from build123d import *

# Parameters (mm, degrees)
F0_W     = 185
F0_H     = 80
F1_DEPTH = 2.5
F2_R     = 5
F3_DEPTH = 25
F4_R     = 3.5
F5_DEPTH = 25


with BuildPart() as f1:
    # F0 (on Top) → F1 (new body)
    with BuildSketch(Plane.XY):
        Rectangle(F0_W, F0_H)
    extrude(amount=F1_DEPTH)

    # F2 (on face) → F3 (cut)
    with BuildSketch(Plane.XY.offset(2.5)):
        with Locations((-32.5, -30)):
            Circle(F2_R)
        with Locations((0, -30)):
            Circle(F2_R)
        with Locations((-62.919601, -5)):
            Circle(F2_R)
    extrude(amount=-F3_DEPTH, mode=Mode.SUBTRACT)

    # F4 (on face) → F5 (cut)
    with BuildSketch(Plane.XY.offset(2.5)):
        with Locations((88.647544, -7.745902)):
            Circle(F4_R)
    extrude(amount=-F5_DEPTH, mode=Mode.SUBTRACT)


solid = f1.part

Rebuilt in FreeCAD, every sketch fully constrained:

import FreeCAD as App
import Part
import Sketcher
from FreeCAD import Vector
Q = App.Units.Quantity


def add_polygon(sketch, points):
    """Adds a closed chain of lines whose ends are joined by coincident constraints."""
    first, n = sketch.GeometryCount, len(points)
    for a, b in zip(points, points[1:] + points[:1]):
        sketch.addGeometry(Part.LineSegment(App.Vector(*a, 0), App.Vector(*b, 0)), False)
    for i in range(n):
        sketch.addConstraint(Sketcher.Constraint("Coincident", first + i, 2, first + (i + 1) % n, 1))

doc = App.newDocument("Part")
body = doc.addObject("PartDesign::Body", "Body")

sketch1 = doc.addObject("Sketcher::SketchObject", "Sketch")
body.addObject(sketch1)
sketch1.AttachmentSupport = (doc.XY_Plane, [""])
sketch1.MapMode = "FlatFace"
add_polygon(sketch1, [(-92, 40), (-92, -40), (92, -40), (92, 40)])
sketch1.addConstraint(Sketcher.Constraint("Vertical", 0))
sketch1.addConstraint(Sketcher.Constraint("Horizontal", 1))
sketch1.addConstraint(Sketcher.Constraint("Vertical", 2))
sketch1.addConstraint(Sketcher.Constraint("Horizontal", 3))
sketch1.addConstraint(Sketcher.Constraint("Symmetric", 0, 2, 2, 2, -1, 1))
sketch1.addConstraint(Sketcher.Constraint("DistanceX", 1, 1, 1, 2, Q("185 mm")))
sketch1.addConstraint(Sketcher.Constraint("DistanceY", 0, 2, 0, 1, Q("80 mm")))
pad1 = doc.addObject("PartDesign::Pad", "Pad")
body.addObject(pad1)
pad1.Profile = sketch1
pad1.Length = 2.5

sketch2 = doc.addObject("Sketcher::SketchObject", "Sketch001")
body.addObject(sketch2)
sketch2.AttachmentSupport = (doc.XY_Plane, [""])
sketch2.MapMode = "FlatFace"
sketch2.AttachmentOffset = App.Placement(Vector(0, 0, 2.5), App.Rotation())
sketch2.addGeometry(Part.Circle(Vector(-32, -30, 0), Vector(0, 0, 1), 5), False)
sketch2.addGeometry(Part.Circle(Vector(0, -30, 0), Vector(0, 0, 1), 5), False)
sketch2.addGeometry(Part.Circle(Vector(-63, -5, 0), Vector(0, 0, 1), 5), False)
sketch2.addConstraint(Sketcher.Constraint("Equal", 0, 1))
sketch2.addConstraint(Sketcher.Constraint("Equal", 1, 2))
sketch2.addConstraint(Sketcher.Constraint("PointOnObject", 1, 3, -2))
sketch2.addConstraint(Sketcher.Constraint("Horizontal", 0, 3, 1, 3))
sketch2.addConstraint(Sketcher.Constraint("Diameter", 0, Q("10 mm")))
sketch2.addConstraint(Sketcher.Constraint("DistanceY", 0, 3, -1, 1, Q("30 mm")))
sketch2.addConstraint(Sketcher.Constraint("DistanceY", 2, 3, -1, 1, Q("5 mm")))
sketch2.addConstraint(Sketcher.Constraint("DistanceX", 0, 3, -1, 1, Q("32.5 mm")))
sketch2.addConstraint(Sketcher.Constraint("DistanceX", 2, 3, -1, 1, Q("62.919601 mm")))
pocket1 = doc.addObject("PartDesign::Pocket", "Pocket")
body.addObject(pocket1)
pocket1.Profile = sketch2
pocket1.Length = 25

sketch3 = doc.addObject("Sketcher::SketchObject", "Sketch002")
body.addObject(sketch3)
sketch3.AttachmentSupport = (doc.XY_Plane, [""])
sketch3.MapMode = "FlatFace"
sketch3.AttachmentOffset = App.Placement(Vector(0, 0, 2.5), App.Rotation())
sketch3.addGeometry(Part.Circle(Vector(88.6, -7.7, 0), Vector(0, 0, 1), 3.5), False)
sketch3.addConstraint(Sketcher.Constraint("Diameter", 0, Q("7 mm")))
sketch3.addConstraint(Sketcher.Constraint("DistanceX", -1, 1, 0, 3, Q("88.647544 mm")))
sketch3.addConstraint(Sketcher.Constraint("DistanceY", 0, 3, -1, 1, Q("7.745902 mm")))
pocket2 = doc.addObject("PartDesign::Pocket", "Pocket001")
body.addObject(pocket2)
pocket2.Profile = sketch3
pocket2.Length = 25

doc.recompute()
